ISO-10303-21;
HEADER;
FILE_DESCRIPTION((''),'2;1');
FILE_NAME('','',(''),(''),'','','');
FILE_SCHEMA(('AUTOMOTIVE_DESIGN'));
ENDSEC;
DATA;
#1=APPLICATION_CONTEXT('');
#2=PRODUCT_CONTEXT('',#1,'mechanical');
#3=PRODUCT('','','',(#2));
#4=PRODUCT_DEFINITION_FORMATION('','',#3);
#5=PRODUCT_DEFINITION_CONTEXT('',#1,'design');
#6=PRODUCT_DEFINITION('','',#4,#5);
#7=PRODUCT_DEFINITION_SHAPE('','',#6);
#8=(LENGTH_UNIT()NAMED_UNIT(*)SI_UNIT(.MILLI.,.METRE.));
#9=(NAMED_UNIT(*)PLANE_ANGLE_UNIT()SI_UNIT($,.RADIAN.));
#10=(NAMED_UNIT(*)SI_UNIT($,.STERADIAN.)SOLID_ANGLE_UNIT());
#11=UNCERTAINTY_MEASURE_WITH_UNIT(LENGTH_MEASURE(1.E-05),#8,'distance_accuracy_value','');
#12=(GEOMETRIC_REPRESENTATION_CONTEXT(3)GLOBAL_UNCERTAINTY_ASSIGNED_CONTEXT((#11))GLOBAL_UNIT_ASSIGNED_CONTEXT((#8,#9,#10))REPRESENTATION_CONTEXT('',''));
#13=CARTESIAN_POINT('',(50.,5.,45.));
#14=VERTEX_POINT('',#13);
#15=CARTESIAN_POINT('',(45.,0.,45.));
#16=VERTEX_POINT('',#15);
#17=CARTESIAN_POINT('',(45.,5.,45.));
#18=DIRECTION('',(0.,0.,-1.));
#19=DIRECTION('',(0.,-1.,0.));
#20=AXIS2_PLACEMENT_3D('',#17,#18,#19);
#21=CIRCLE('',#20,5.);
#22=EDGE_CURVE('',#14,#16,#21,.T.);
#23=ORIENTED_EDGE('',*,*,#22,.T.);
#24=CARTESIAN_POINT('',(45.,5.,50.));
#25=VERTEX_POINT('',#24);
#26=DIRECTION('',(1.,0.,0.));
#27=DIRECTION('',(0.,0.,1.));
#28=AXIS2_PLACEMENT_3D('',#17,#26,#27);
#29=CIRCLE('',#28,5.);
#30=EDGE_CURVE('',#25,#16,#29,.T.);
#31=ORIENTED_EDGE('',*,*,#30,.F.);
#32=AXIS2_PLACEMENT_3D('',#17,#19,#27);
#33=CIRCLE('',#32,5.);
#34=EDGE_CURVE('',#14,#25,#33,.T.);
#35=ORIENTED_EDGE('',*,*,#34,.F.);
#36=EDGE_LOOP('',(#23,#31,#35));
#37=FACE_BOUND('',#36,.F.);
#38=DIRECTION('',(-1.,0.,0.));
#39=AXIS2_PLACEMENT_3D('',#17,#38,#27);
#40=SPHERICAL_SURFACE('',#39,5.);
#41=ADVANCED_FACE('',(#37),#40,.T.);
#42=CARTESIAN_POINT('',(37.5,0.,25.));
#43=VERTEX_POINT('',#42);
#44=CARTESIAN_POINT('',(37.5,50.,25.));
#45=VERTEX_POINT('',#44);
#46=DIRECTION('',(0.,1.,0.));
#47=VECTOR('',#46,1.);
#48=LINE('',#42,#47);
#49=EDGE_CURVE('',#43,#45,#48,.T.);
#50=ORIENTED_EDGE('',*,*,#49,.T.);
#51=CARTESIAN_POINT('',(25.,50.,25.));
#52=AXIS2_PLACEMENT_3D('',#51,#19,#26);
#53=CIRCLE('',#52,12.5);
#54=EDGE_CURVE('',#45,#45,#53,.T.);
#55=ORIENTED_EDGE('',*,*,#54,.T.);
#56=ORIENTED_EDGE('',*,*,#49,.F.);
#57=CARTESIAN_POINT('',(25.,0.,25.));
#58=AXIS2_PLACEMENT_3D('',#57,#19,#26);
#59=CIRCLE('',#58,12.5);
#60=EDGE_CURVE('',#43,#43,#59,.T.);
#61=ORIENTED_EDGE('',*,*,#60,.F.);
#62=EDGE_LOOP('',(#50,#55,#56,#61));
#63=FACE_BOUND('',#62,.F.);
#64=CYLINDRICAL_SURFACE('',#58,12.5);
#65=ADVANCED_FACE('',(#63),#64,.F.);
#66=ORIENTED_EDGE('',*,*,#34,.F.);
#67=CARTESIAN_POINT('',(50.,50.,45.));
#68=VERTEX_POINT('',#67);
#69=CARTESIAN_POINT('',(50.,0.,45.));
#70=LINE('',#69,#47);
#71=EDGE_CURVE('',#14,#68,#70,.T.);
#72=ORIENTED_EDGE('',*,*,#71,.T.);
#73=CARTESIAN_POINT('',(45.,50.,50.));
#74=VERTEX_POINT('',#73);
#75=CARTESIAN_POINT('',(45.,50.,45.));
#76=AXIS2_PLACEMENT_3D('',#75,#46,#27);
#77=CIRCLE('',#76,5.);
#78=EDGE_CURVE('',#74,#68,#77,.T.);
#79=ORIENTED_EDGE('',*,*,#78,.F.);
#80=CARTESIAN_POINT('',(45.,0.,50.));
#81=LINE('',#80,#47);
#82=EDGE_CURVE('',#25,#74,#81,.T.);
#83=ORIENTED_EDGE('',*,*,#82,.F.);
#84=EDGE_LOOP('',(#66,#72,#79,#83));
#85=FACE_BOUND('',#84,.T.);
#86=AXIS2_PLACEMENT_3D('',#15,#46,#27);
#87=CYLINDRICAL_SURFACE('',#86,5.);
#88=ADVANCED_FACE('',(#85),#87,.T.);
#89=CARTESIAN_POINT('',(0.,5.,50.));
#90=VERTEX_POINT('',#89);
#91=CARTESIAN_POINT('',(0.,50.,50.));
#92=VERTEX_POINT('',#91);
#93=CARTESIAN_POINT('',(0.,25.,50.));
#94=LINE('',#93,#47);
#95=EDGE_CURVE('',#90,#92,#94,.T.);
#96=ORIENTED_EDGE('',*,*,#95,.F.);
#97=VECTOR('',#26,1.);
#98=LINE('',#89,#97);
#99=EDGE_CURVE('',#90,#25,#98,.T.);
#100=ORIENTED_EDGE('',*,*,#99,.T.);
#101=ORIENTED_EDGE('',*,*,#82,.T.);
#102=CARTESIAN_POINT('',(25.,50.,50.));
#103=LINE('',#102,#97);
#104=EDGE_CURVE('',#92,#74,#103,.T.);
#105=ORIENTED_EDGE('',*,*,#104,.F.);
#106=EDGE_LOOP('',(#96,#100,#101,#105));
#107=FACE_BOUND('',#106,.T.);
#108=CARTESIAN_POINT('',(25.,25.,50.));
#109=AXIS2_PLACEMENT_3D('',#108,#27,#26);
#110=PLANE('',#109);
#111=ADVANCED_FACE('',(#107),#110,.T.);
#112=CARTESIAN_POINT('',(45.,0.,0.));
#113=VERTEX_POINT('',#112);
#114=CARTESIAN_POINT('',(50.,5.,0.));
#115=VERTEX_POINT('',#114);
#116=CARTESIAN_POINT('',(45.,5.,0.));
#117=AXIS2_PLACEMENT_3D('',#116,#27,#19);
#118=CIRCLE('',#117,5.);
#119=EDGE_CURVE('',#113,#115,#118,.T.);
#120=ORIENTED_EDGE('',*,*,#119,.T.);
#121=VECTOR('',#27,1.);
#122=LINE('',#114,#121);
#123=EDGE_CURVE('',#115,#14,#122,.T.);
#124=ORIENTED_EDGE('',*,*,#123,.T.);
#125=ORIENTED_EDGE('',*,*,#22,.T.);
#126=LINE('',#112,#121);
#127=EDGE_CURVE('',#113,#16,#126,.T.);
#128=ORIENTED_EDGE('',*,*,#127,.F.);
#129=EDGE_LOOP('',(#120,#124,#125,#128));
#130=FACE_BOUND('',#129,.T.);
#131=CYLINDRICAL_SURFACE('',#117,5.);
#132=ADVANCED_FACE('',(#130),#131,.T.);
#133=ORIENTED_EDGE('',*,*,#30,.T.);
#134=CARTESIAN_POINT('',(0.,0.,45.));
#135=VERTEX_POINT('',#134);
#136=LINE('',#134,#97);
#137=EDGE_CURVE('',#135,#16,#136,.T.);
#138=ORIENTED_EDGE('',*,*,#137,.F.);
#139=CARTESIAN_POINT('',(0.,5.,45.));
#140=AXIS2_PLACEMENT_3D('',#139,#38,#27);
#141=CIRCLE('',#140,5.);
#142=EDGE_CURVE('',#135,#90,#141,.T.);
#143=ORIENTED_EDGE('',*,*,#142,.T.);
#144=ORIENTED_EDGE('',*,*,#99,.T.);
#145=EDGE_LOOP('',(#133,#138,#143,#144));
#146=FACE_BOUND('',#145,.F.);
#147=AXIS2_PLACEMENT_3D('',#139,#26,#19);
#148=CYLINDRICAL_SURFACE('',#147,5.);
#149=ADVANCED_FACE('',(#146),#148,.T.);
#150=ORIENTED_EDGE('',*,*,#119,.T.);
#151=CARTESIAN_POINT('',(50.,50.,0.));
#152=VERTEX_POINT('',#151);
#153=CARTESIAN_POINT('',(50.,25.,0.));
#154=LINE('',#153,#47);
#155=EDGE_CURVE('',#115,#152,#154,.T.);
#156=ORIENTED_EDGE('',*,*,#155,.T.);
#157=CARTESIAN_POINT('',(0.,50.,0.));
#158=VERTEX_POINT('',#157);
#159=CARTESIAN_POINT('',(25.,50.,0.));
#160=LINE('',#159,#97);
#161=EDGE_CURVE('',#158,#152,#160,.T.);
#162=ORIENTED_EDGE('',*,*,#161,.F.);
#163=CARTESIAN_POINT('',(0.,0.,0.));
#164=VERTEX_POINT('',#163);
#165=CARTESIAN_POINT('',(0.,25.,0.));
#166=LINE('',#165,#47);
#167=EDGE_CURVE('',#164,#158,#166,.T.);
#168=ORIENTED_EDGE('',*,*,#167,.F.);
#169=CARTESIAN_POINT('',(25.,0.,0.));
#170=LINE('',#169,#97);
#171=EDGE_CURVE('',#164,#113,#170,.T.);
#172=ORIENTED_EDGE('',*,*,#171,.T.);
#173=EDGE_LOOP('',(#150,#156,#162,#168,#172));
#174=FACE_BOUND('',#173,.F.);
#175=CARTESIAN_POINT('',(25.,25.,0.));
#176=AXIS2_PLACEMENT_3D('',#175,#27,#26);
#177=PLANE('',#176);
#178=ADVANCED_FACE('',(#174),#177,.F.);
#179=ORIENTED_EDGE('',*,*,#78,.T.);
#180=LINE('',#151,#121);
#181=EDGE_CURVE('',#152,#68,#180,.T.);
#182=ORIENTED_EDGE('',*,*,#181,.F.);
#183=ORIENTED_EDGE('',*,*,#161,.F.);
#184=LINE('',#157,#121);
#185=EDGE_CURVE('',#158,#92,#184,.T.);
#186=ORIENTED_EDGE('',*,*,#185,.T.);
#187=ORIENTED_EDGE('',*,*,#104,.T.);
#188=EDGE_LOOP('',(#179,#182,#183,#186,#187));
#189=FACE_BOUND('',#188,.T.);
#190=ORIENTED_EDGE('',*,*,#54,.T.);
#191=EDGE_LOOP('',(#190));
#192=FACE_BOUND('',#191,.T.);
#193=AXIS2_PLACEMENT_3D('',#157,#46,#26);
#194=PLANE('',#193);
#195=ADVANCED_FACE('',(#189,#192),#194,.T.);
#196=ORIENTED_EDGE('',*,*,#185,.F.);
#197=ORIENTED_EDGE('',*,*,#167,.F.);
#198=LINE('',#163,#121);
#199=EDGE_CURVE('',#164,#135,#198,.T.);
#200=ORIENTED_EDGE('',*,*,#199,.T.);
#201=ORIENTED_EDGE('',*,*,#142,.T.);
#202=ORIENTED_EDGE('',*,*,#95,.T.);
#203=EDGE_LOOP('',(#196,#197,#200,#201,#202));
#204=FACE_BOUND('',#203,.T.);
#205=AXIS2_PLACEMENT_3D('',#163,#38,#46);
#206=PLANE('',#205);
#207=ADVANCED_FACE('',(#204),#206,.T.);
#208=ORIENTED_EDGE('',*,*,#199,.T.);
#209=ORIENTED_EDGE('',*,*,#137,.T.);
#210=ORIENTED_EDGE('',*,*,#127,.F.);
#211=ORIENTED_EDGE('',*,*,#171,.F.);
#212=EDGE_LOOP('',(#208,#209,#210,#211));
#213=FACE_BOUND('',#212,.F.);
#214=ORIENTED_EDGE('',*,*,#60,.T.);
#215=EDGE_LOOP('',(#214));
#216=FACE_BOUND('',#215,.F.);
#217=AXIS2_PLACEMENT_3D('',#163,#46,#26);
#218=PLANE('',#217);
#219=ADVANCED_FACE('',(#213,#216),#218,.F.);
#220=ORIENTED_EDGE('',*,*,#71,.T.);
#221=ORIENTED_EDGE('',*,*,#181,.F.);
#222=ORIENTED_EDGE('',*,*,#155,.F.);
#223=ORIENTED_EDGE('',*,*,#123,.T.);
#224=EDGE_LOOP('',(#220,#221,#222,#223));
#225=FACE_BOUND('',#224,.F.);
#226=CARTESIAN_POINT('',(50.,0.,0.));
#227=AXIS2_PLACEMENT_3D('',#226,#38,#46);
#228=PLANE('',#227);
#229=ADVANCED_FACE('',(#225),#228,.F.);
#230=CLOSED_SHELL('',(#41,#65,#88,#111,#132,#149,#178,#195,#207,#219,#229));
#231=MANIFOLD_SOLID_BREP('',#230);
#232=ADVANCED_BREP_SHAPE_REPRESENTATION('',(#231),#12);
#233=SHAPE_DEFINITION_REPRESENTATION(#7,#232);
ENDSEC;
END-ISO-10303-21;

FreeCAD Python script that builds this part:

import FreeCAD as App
import Part
import Sketcher
from FreeCAD import Vector
Q = App.Units.Quantity


def edges_at(feature, points):
    """Names of the edges that pass closest to the given points."""
    edges = feature.Shape.Edges
    near = lambda p: min(range(len(edges)), key=lambda i: edges[i].distToShape(Part.Vertex(*p))[0])
    return sorted({f"Edge{near(p) + 1}" for p in points})

doc = App.newDocument("Part")
params = doc.addObject("Spreadsheet::Sheet", "Params")
for row, (alias, value) in enumerate([
    ("sketch1_width", "50 mm"),
    ("pad1_length", "50 mm"),
    ("sketch2_diameter", "25 mm"),
    ("fillet_radius", "5 mm"),
], start=1):
    params.set(f"A{row}", alias)
    params.set(f"B{row}", "=" + value)
    params.setAlias(f"B{row}", alias)

body = doc.addObject("PartDesign::Body", "Body")

# Sketch on XY plane
sketch1 = doc.addObject("Sketcher::SketchObject", "Sketch")
body.addObject(sketch1)
sketch1.AttachmentSupport = (doc.XY_Plane, [""])
sketch1.MapMode = "FlatFace"
sketch1.addGeometry(Part.LineSegment(Vector(0, 50, 0), Vector(0, 0, 0)), False)
sketch1.addGeometry(Part.LineSegment(Vector(0, 0, 0), Vector(50, 0, 0)), False)
sketch1.addGeometry(Part.LineSegment(Vector(50, 0, 0), Vector(50, 50, 0)), False)
sketch1.addGeometry(Part.LineSegment(Vector(50, 50, 0), Vector(0, 50, 0)), False)
sketch1.addConstraint(Sketcher.Constraint("Coincident", 0, 2, 1, 1))
sketch1.addConstraint(Sketcher.Constraint("Coincident", 1, 2, 2, 1))
sketch1.addConstraint(Sketcher.Constraint("Coincident", 2, 2, 3, 1))
sketch1.addConstraint(Sketcher.Constraint("Coincident", 3, 2, 0, 1))
sketch1.addConstraint(Sketcher.Constraint("Vertical", 0))
sketch1.addConstraint(Sketcher.Constraint("Horizontal", 1))
sketch1.addConstraint(Sketcher.Constraint("Vertical", 2))
sketch1.addConstraint(Sketcher.Constraint("Horizontal", 3))
sketch1.addConstraint(Sketcher.Constraint("Coincident", 0, 2, -1, 1))
sketch1.addConstraint(Sketcher.Constraint("Equal", 3, 0))
sketch1.addConstraint(Sketcher.Constraint("DistanceX", 1, 1, 1, 2, Q("50 mm")))
sketch1.setExpression("Constraints[10]", "Params.sketch1_width")
pad1 = doc.addObject("PartDesign::Pad", "Pad")
body.addObject(pad1)
pad1.Profile = sketch1
pad1.setExpression("Length", "Params.pad1_length")

# Sketch on XZ plane
sketch2 = doc.addObject("Sketcher::SketchObject", "Sketch001")
body.addObject(sketch2)
sketch2.AttachmentSupport = (doc.XZ_Plane, [""])
sketch2.MapMode = "FlatFace"
sketch2.addGeometry(Part.Circle(Vector(25, 25, 0), Vector(0, 0, 1), 12), False)
sketch2.addConstraint(Sketcher.Constraint("Diameter", 0, Q("25 mm")))
sketch2.addConstraint(Sketcher.Constraint("DistanceX", -1, 1, 0, 3, Q("25 mm")))
sketch2.addConstraint(Sketcher.Constraint("DistanceY", -1, 1, 0, 3, Q("25 mm")))
sketch2.setExpression("Constraints[0]", "Params.sketch2_diameter")
pocket1 = doc.addObject("PartDesign::Pocket", "Pocket")
body.addObject(pocket1)
pocket1.Profile = sketch2
pocket1.Type = "ThroughAll"
doc.recompute()

fillet = doc.addObject("PartDesign::Fillet", "Fillet")
body.addObject(fillet)
fillet.Base = (pocket1, edges_at(pocket1, [(25, 0, 50), (50, 25, 50), (50, 0, 25)]))
fillet.setExpression("Radius", "Params.fillet_radius")

doc.recompute()
